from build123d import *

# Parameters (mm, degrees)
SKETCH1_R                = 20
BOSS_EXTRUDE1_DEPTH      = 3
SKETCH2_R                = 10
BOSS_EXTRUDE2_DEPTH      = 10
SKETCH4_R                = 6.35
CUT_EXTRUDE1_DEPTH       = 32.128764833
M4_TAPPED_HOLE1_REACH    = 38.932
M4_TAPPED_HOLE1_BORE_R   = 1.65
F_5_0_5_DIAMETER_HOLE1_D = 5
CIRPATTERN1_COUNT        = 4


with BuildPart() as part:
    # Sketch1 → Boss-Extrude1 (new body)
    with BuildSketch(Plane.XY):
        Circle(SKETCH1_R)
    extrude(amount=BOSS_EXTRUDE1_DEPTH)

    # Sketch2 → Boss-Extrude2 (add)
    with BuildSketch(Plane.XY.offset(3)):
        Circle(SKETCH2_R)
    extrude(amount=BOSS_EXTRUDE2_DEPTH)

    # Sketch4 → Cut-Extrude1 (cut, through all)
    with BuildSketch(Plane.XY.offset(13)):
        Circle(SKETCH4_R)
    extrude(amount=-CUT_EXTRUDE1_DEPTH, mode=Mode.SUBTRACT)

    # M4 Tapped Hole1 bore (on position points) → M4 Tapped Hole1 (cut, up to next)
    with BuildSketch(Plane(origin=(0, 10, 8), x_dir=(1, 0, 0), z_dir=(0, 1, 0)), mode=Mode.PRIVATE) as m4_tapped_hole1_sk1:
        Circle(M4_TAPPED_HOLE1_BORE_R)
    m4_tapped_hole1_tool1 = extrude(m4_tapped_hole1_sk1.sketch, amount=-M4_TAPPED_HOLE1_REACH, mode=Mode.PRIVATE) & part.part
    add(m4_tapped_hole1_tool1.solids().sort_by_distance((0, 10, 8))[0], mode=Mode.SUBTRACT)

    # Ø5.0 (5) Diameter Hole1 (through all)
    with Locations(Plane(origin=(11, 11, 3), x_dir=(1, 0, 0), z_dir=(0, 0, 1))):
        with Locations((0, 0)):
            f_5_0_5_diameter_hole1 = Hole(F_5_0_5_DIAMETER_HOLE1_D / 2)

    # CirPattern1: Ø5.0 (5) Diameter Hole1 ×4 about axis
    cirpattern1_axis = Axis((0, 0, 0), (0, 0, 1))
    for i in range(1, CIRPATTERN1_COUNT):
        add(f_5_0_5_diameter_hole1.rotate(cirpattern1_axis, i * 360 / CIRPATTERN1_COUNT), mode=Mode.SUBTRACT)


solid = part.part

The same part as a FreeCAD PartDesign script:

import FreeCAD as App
import Part
import Sketcher

V = App.Vector

doc = App.newDocument("Part")
body = doc.addObject("PartDesign::Body", "Body")

# Sketch on XY plane
sketch1 = body.newObject("Sketcher::SketchObject", "Sketch")
sketch1.AttachmentSupport = (doc.getObject("XY_Plane"), [""])
sketch1.MapMode = "FlatFace"
sketch1.addGeometry(Part.Circle(V(0, 0, 0), V(0, 0, 1), 20), False)
sketch1.addConstraint([
    Sketcher.Constraint("Coincident", 0, 3, -1, 1),
    Sketcher.Constraint("Diameter", 0, 40.0),
])
pad1 = body.newObject("PartDesign::Pad", "Pad")
pad1.Profile = sketch1
pad1.Length = 3

# Sketch on XY plane
sketch2 = body.newObject("Sketcher::SketchObject", "Sketch001")
sketch2.AttachmentSupport = (doc.getObject("XY_Plane"), [""])
sketch2.MapMode = "FlatFace"
sketch2.AttachmentOffset = App.Placement(V(0, 0, 3), App.Rotation())
sketch2.addGeometry(Part.Circle(V(0, 0, 0), V(0, 0, 1), 10), False)
sketch2.addConstraint([
    Sketcher.Constraint("Coincident", 0, 3, -1, 1),
    Sketcher.Constraint("Diameter", 0, 20.0),
])
pad2 = body.newObject("PartDesign::Pad", "Pad001")
pad2.Profile = sketch2
pad2.Length = 10

# Sketch on XY plane
sketch3 = body.newObject("Sketcher::SketchObject", "Sketch002")
sketch3.AttachmentSupport = (doc.getObject("XY_Plane"), [""])
sketch3.MapMode = "FlatFace"
sketch3.AttachmentOffset = App.Placement(V(0, 0, 13), App.Rotation())
sketch3.addGeometry(Part.Circle(V(0, 0, 0), V(0, 0, 1), 6.35), False)
sketch3.addConstraint([
    Sketcher.Constraint("Coincident", 0, 3, -1, 1),
    Sketcher.Constraint("Diameter", 0, 12.7),
])
pocket1 = body.newObject("PartDesign::Pocket", "Pocket")
pocket1.Profile = sketch3
pocket1.Type = "ThroughAll"

# Sketch on XZ plane
sketch4 = body.newObject("Sketcher::SketchObject", "Sketch003")
sketch4.AttachmentSupport = (doc.getObject("XZ_Plane"), [""])
sketch4.MapMode = "FlatFace"
sketch4.AttachmentOffset = App.Placement(V(0, 0, -10), App.Rotation())
sketch4.addGeometry(Part.Circle(V(0, 8, 0), V(0, 0, 1), 1.65), False)
sketch4.addConstraint([
    Sketcher.Constraint("PointOnObject", 0, 3, -2),
    Sketcher.Constraint("Diameter", 0, 3.3),
    Sketcher.Constraint("DistanceY", -1, 1, 0, 3, 8.0),
])
pocket2 = body.newObject("PartDesign::Pocket", "Pocket001")
pocket2.Profile = sketch4
pocket2.Type = "UpToFirst"
pocket2.Reversed = True

# Sketch on XY plane
sketch5 = body.newObject("Sketcher::SketchObject", "Sketch004")
sketch5.AttachmentSupport = (doc.getObject("XY_Plane"), [""])
sketch5.MapMode = "FlatFace"
sketch5.AttachmentOffset = App.Placement(V(0, 0, 3), App.Rotation())
sketch5.addGeometry(Part.Circle(V(11, 11, 0), V(0, 0, 1), 2.5), False)
sketch5.addConstraint([
    Sketcher.Constraint("Diameter", 0, 5.0),
    Sketcher.Constraint("DistanceX", -1, 1, 0, 3, 11.0),
    Sketcher.Constraint("DistanceY", -1, 1, 0, 3, 11.0),
])
doc.recompute()
hole = body.newObject("PartDesign::Hole", "Hole")
hole.Profile = sketch5
hole.ThreadType = "None"
hole.Diameter = 5
hole.DepthType = "ThroughAll"
doc.recompute()

polarpattern = body.newObject("PartDesign::PolarPattern", "PolarPattern")
polarpattern.Originals = [hole]
polarpattern.Axis = (doc.getObject("Z_Axis"), [""])
polarpattern.Angle = 360
polarpattern.Occurrences = 4
body.Tip = polarpattern

doc.recompute()
